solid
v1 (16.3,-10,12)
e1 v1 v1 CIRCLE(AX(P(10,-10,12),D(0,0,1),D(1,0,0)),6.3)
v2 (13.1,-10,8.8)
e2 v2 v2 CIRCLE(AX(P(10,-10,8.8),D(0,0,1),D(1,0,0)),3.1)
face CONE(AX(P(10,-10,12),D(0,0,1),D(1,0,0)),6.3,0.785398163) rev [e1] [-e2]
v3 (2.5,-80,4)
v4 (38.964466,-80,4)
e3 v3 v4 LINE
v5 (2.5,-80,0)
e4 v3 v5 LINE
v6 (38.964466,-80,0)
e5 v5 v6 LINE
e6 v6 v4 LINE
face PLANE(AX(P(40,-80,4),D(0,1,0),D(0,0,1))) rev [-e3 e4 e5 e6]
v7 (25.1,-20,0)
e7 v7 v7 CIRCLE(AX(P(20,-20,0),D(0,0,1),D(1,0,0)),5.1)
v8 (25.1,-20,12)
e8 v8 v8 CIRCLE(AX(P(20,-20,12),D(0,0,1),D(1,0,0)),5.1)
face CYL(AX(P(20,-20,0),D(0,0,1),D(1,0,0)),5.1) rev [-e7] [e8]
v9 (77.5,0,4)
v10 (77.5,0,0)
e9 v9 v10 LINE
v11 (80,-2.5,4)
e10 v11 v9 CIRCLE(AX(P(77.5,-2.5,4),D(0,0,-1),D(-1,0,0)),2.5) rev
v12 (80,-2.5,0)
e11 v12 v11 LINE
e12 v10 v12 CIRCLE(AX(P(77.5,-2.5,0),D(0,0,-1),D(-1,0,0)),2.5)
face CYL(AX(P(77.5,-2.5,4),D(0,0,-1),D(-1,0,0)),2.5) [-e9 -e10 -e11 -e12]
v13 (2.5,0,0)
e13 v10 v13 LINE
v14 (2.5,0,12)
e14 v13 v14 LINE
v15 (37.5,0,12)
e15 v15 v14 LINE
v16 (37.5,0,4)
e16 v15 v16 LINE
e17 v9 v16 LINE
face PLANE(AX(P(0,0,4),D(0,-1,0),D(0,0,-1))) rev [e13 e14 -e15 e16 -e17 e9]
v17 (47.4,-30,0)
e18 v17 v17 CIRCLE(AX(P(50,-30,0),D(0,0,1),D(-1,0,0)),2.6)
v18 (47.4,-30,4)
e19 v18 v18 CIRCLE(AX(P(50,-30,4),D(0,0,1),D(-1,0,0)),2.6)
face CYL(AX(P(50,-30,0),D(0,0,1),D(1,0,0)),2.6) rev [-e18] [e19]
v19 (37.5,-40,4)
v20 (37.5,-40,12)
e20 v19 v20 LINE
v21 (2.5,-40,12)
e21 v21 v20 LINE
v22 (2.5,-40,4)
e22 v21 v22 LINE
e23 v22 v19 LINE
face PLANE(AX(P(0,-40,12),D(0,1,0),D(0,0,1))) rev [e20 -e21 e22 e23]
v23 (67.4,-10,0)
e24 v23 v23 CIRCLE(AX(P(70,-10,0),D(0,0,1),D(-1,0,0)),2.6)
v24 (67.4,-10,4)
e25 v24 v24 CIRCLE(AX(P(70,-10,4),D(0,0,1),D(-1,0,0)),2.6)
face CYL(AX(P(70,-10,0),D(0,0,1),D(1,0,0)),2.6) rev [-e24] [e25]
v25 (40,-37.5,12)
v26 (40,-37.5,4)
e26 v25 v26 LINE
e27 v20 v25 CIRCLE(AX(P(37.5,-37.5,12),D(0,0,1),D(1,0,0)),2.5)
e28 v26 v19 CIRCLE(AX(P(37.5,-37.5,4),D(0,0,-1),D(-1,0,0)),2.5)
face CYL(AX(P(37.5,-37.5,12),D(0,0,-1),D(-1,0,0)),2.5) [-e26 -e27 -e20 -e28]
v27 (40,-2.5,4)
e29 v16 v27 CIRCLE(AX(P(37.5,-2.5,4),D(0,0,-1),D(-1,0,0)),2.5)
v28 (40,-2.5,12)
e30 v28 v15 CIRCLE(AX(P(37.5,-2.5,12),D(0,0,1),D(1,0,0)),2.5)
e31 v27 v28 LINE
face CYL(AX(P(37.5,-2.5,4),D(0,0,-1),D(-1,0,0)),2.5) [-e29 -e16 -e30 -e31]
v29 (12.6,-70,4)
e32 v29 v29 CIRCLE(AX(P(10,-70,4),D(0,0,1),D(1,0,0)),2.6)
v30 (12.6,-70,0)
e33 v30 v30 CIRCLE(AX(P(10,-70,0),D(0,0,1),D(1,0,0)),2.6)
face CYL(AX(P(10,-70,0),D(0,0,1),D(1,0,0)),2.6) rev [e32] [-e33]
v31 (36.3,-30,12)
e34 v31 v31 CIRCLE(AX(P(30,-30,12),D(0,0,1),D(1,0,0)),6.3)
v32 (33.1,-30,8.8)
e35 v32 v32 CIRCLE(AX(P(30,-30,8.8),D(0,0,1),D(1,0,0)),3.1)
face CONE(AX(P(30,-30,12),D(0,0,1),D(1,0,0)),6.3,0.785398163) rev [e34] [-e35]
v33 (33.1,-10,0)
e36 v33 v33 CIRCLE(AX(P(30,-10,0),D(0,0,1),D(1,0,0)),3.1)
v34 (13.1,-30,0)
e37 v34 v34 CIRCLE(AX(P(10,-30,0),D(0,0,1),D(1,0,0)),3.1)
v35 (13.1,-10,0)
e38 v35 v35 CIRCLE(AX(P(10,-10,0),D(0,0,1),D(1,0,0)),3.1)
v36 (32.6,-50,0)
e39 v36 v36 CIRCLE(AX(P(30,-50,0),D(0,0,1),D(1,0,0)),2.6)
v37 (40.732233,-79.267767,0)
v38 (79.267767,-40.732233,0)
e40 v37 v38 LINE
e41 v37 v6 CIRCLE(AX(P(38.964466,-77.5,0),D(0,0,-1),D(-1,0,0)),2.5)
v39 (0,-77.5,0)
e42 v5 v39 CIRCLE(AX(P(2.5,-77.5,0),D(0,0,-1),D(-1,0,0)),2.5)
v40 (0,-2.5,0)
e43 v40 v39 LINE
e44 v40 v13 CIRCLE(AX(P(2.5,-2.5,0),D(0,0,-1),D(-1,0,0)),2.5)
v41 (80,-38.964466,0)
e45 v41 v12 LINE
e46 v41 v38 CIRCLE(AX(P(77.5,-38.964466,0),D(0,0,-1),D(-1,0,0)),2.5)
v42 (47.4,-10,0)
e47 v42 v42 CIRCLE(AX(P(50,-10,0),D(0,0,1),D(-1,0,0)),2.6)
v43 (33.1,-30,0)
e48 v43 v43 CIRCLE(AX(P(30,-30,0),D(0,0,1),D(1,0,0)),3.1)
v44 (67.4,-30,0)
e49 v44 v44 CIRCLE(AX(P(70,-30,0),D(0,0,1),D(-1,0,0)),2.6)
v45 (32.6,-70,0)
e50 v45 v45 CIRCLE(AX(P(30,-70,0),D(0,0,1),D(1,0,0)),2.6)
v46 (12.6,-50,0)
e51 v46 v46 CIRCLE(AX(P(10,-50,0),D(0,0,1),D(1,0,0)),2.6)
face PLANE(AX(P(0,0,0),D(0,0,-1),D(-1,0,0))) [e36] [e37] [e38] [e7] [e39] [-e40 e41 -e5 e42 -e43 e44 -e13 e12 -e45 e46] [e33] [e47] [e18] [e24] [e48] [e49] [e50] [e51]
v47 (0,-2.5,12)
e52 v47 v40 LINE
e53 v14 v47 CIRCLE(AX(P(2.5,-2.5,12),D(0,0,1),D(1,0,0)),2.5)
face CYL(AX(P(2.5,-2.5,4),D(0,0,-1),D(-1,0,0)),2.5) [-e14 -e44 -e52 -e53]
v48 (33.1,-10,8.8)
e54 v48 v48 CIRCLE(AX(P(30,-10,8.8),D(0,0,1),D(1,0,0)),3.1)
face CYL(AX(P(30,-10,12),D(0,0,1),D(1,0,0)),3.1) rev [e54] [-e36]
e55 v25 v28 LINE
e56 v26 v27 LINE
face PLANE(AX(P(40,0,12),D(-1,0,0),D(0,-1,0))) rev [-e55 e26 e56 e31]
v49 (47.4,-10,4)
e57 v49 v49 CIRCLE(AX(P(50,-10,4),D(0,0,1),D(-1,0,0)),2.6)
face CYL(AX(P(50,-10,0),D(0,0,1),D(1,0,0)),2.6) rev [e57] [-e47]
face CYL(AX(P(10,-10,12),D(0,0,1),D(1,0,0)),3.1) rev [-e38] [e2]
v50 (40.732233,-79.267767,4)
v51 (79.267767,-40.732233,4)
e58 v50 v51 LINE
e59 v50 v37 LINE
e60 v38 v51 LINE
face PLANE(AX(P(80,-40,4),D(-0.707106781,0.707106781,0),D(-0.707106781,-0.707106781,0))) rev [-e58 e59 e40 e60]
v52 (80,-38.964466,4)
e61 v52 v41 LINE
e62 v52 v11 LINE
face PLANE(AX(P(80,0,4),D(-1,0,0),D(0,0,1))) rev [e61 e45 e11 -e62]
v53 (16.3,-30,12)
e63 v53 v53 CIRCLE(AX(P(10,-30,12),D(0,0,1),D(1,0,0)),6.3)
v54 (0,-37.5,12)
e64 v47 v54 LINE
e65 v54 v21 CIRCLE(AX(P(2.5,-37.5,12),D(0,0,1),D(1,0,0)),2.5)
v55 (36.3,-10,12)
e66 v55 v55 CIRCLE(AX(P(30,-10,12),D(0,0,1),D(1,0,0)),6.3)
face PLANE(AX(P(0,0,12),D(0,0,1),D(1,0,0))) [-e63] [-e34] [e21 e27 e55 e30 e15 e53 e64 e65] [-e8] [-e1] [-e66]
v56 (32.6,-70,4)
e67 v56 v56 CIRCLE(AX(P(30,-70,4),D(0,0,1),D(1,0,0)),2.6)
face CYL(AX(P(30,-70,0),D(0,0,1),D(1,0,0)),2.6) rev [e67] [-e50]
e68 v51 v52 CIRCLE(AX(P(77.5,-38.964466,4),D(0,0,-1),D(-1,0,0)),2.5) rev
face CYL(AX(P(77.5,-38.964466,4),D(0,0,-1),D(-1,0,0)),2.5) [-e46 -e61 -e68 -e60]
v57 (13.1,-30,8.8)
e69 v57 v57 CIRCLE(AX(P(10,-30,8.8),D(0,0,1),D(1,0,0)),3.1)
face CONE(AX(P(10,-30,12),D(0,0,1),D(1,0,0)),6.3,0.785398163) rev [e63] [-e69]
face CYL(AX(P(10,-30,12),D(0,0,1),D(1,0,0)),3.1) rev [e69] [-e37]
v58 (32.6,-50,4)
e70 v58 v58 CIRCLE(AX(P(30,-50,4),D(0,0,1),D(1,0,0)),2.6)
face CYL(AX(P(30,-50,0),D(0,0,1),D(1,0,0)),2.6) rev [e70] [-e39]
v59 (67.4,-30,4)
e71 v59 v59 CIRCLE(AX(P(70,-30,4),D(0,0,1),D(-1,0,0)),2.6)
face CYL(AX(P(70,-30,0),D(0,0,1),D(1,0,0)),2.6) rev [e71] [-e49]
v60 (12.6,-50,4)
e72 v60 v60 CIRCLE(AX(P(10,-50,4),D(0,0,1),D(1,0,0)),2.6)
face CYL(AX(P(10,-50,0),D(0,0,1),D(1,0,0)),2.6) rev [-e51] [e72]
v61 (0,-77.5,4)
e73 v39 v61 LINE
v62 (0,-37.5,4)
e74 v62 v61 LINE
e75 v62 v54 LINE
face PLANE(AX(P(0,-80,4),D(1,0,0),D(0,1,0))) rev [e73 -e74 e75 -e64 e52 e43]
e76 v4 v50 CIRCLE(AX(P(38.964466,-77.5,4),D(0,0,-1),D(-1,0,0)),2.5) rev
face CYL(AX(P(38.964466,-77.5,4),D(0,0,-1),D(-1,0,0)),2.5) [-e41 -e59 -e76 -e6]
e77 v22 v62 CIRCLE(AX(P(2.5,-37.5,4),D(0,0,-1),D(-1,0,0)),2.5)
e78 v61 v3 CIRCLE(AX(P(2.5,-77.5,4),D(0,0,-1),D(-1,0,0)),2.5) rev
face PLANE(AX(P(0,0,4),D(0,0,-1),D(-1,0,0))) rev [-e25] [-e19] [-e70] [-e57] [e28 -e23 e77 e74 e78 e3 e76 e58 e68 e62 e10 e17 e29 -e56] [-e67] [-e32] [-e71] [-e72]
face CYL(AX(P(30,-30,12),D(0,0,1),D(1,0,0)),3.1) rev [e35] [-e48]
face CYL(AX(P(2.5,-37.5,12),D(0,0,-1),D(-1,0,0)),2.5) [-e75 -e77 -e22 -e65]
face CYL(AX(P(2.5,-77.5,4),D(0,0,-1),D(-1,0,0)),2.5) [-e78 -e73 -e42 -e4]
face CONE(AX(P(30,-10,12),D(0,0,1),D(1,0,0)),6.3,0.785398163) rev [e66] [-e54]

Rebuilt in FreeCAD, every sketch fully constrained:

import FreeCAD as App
import Part
import Sketcher


def edges_at(feature, points):
    """Names of the edges that pass closest to the given points."""
    edges = feature.Shape.Edges
    near = lambda p: min(range(len(edges)), key=lambda i: edges[i].distToShape(Part.Vertex(*p))[0])
    return sorted({f"Edge{near(p) + 1}" for p in points})

doc = App.newDocument("Part")
body = doc.addObject("PartDesign::Body", "Body")

sketch1 = body.newObject("Sketcher::SketchObject", "Sketch")
sketch1.AttachmentSupport = (doc.getObject("XY_Plane"), [""])
sketch1.MapMode = "FlatFace"
sketch1.addGeometry([
    Part.LineSegment(App.Vector(80, 0, 0), App.Vector(0, 0, 0)),
    Part.LineSegment(App.Vector(0, 0, 0), App.Vector(0, -80, 0)),
    Part.LineSegment(App.Vector(0, -80, 0), App.Vector(40, -80, 0)),
    Part.LineSegment(App.Vector(40, -80, 0), App.Vector(80, -40, 0)),
    Part.LineSegment(App.Vector(80, -40, 0), App.Vector(80, 0, 0)),
], False)
sketch1.addConstraint([
    Sketcher.Constraint("Coincident", 0, 2, 1, 1),
    Sketcher.Constraint("Coincident", 1, 2, 2, 1),
    Sketcher.Constraint("Coincident", 2, 2, 3, 1),
    Sketcher.Constraint("Coincident", 3, 2, 4, 1),
    Sketcher.Constraint("Coincident", 4, 2, 0, 1),
    Sketcher.Constraint("Horizontal", 0),
    Sketcher.Constraint("Vertical", 1),
    Sketcher.Constraint("Horizontal", 2),
    Sketcher.Constraint("Vertical", 4),
    Sketcher.Constraint("Coincident", 0, 2, -1, 1),
    Sketcher.Constraint("Equal", 0, 1),
    Sketcher.Constraint("Equal", 2, 4),
    Sketcher.Constraint("DistanceX", 0, 2, 0, 1, 80.0),
    Sketcher.Constraint("DistanceX", 2, 1, 2, 2, 40.0),
])
pad1 = body.newObject("PartDesign::Pad", "Pad")
pad1.Profile = sketch1
pad1.Length = 4

sketch2 = body.newObject("Sketcher::SketchObject", "Sketch001")
sketch2.AttachmentSupport = (doc.getObject("XY_Plane"), [""])
sketch2.MapMode = "FlatFace"
sketch2.AttachmentOffset = App.Placement(App.Vector(0, 0, 4), App.Rotation())
sketch2.addGeometry([
    Part.LineSegment(App.Vector(0, 0, 0), App.Vector(0, -40, 0)),
    Part.LineSegment(App.Vector(0, -40, 0), App.Vector(40, -40, 0)),
    Part.LineSegment(App.Vector(40, -40, 0), App.Vector(40, 0, 0)),
    Part.LineSegment(App.Vector(40, 0, 0), App.Vector(0, 0, 0)),
], False)
sketch2.addConstraint([
    Sketcher.Constraint("Coincident", 0, 2, 1, 1),
    Sketcher.Constraint("Coincident", 1, 2, 2, 1),
    Sketcher.Constraint("Coincident", 2, 2, 3, 1),
    Sketcher.Constraint("Coincident", 3, 2, 0, 1),
    Sketcher.Constraint("Vertical", 0),
    Sketcher.Constraint("Horizontal", 1),
    Sketcher.Constraint("Vertical", 2),
    Sketcher.Constraint("Horizontal", 3),
    Sketcher.Constraint("Coincident", 3, 2, -1, 1),
    Sketcher.Constraint("Equal", 3, 0),
    Sketcher.Constraint("DistanceX", 1, 1, 1, 2, 40.0),
])
pad2 = body.newObject("PartDesign::Pad", "Pad001")
pad2.Profile = sketch2
pad2.Length = 8

sketch3 = body.newObject("Sketcher::SketchObject", "Sketch002")
sketch3.AttachmentSupport = (doc.getObject("XY_Plane"), [""])
sketch3.MapMode = "FlatFace"
sketch3.AttachmentOffset = App.Placement(App.Vector(0, 0, 12), App.Rotation())
sketch3.addGeometry([
    Part.Circle(App.Vector(10, -30, 0), App.Vector(0, 0, 1), 3.1),
    Part.Circle(App.Vector(10, -10, 0), App.Vector(0, 0, 1), 3.1),
    Part.Circle(App.Vector(30, -10, 0), App.Vector(0, 0, 1), 3.1),
    Part.Circle(App.Vector(30, -30, 0), App.Vector(0, 0, 1), 3.1),
], False)
sketch3.addConstraint([
    Sketcher.Constraint("Equal", 0, 1),
    Sketcher.Constraint("Equal", 1, 2),
    Sketcher.Constraint("Equal", 2, 3),
    Sketcher.Constraint("Horizontal", 1, 3, 2, 3),
    Sketcher.Constraint("Horizontal", 0, 3, 3, 3),
    Sketcher.Constraint("Vertical", 0, 3, 1, 3),
    Sketcher.Constraint("Vertical", 2, 3, 3, 3),
    Sketcher.Constraint("Diameter", 0, 6.2),
    Sketcher.Constraint("DistanceX", -1, 1, 0, 3, 10.0),
    Sketcher.Constraint("DistanceY", 0, 3, -1, 1, 30.0),
    Sketcher.Constraint("DistanceY", 1, 3, -1, 1, 10.0),
    Sketcher.Constraint("DistanceX", -1, 1, 2, 3, 30.0),
])
doc.recompute()
hole = body.newObject("PartDesign::Hole", "Hole")
hole.Profile = sketch3
hole.ThreadType = "None"
hole.Diameter = 6.2
hole.DepthType = "ThroughAll"
hole.HoleCutType = "Countersink"
hole.HoleCutDiameter = 12.6
hole.HoleCutCountersinkAngle = 90

sketch4 = body.newObject("Sketcher::SketchObject", "Sketch003")
sketch4.AttachmentSupport = (doc.getObject("XY_Plane"), [""])
sketch4.MapMode = "FlatFace"
sketch4.AttachmentOffset = App.Placement(App.Vector(0, 0, 12), App.Rotation())
sketch4.addGeometry(Part.Circle(App.Vector(20, -20, 0), App.Vector(0, 0, 1), 5), False)
sketch4.addConstraint([
    Sketcher.Constraint("Diameter", 0, 10.2),
    Sketcher.Constraint("DistanceX", -1, 1, 0, 3, 20.0),
    Sketcher.Constraint("DistanceY", 0, 3, -1, 1, 20.0),
])
pocket1 = body.newObject("PartDesign::Pocket", "Pocket")
pocket1.Profile = sketch4
pocket1.Type = "ThroughAll"

sketch5 = body.newObject("Sketcher::SketchObject", "Sketch004")
sketch5.AttachmentSupport = (doc.getObject("XY_Plane"), [""])
sketch5.MapMode = "FlatFace"
sketch5.AttachmentOffset = App.Placement(App.Vector(0, 0, 4), App.Rotation())
sketch5.addGeometry([
    Part.Circle(App.Vector(10, -50, 0), App.Vector(0, 0, 1), 2.6),
    Part.Circle(App.Vector(30, -50, 0), App.Vector(0, 0, 1), 2.6),
    Part.Circle(App.Vector(30, -70, 0), App.Vector(0, 0, 1), 2.6),
    Part.Circle(App.Vector(10, -70, 0), App.Vector(0, 0, 1), 2.6),
    Part.Circle(App.Vector(70, -10, 0), App.Vector(0, 0, 1), 2.6),
    Part.Circle(App.Vector(70, -30, 0), App.Vector(0, 0, 1), 2.6),
    Part.Circle(App.Vector(50, -30, 0), App.Vector(0, 0, 1), 2.6),
    Part.Circle(App.Vector(50, -10, 0), App.Vector(0, 0, 1), 2.6),
], False)
sketch5.addConstraint([
    Sketcher.Constraint("Equal", 0, 1),
    Sketcher.Constraint("Equal", 1, 2),
    Sketcher.Constraint("Equal", 2, 3),
    Sketcher.Constraint("Equal", 3, 4),
    Sketcher.Constraint("Equal", 4, 5),
    Sketcher.Constraint("Equal", 5, 6),
    Sketcher.Constraint("Equal", 6, 7),
    Sketcher.Constraint("Horizontal", 0, 3, 1, 3),
    Sketcher.Constraint("Horizontal", 2, 3, 3, 3),
    Sketcher.Constraint("Horizontal", 5, 3, 6, 3),
    Sketcher.Constraint("Horizontal", 4, 3, 7, 3),
    Sketcher.Constraint("Vertical", 1, 3, 2, 3),
    Sketcher.Constraint("Vertical", 0, 3, 3, 3),
    Sketcher.Constraint("Vertical", 4, 3, 5, 3),
    Sketcher.Constraint("Vertical", 6, 3, 7, 3),
    Sketcher.Constraint("Diameter", 0, 5.2),
    Sketcher.Constraint("DistanceX", -1, 1, 0, 3, 10.0),
    Sketcher.Constraint("DistanceY", 0, 3, -1, 1, 50.0),
    Sketcher.Constraint("DistanceX", -1, 1, 1, 3, 30.0),
    Sketcher.Constraint("DistanceY", 2, 3, -1, 1, 70.0),
    Sketcher.Constraint("DistanceX", -1, 1, 4, 3, 70.0),
    Sketcher.Constraint("DistanceY", 4, 3, -1, 1, 10.0),
    Sketcher.Constraint("DistanceY", 5, 3, -1, 1, 30.0),
    Sketcher.Constraint("DistanceX", -1, 1, 6, 3, 50.0),
])
pocket2 = body.newObject("PartDesign::Pocket", "Pocket001")
pocket2.Profile = sketch5
pocket2.Type = "ThroughAll"
doc.recompute()

fillet = body.newObject("PartDesign::Fillet", "Fillet")
fillet.Base = (pocket2, edges_at(pocket2, [
    (0, -40, 8),
    (40, -40, 8),
    (40, 0, 8),
    (0, 0, 6),
    (80, 0, 2),
    (80, -40, 2),
    (40, -80, 2),
    (0, -80, 2),
]))
fillet.Radius = 2.5

doc.recompute()
